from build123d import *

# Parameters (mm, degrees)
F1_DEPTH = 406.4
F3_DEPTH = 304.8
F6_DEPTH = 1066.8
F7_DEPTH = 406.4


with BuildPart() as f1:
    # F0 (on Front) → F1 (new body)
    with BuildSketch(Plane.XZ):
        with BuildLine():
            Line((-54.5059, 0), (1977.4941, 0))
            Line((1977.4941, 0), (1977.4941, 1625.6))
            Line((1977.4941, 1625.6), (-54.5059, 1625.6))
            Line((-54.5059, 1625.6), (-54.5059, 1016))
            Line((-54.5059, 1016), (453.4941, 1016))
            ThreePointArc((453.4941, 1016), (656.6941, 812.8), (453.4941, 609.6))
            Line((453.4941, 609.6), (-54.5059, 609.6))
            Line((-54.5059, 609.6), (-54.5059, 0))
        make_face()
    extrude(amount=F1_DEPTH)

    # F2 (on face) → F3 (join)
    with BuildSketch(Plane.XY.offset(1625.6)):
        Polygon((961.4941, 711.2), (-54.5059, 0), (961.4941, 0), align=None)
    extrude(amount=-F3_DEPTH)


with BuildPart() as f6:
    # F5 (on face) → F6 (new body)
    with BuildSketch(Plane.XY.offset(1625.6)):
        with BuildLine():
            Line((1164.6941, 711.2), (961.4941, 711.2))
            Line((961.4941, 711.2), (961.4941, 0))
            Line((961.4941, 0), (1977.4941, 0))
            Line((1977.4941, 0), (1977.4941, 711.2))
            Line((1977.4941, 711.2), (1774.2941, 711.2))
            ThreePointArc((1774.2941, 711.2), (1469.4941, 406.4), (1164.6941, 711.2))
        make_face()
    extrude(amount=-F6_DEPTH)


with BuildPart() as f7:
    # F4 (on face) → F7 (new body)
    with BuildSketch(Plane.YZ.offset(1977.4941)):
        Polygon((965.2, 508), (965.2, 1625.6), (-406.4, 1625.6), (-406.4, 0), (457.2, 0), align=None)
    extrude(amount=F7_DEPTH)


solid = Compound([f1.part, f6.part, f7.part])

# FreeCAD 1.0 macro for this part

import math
import FreeCAD as App
import Part
import Sketcher

V = App.Vector
Q = App.Units.Quantity

doc = App.newDocument("Part")
body = doc.addObject("PartDesign::Body", "Body")

sketch1 = doc.addObject("Sketcher::SketchObject", "Sketch")
body.addObject(sketch1)
sketch1.AttachmentSupport = (doc.XZ_Plane, [""])
sketch1.MapMode = "FlatFace"
sketch1.addGeometry(Part.LineSegment(V(-55, 0, 0), V(1977, 0, 0)), False)
sketch1.addGeometry(Part.LineSegment(V(1977, 0, 0), V(1977, 1626, 0)), False)
sketch1.addGeometry(Part.LineSegment(V(1977, 1626, 0), V(-55, 1626, 0)), False)
sketch1.addGeometry(Part.LineSegment(V(-55, 1626, 0), V(-55, 1016, 0)), False)
sketch1.addGeometry(Part.LineSegment(V(-55, 1016, 0), V(453, 1016, 0)), False)
sketch1.addGeometry(Part.ArcOfCircle(Part.Circle(V(453, 813, 0), V(0, 0, 1), 203), math.radians(-90), math.radians(90)), False)
sketch1.addGeometry(Part.LineSegment(V(453, 610, 0), V(-55, 610, 0)), False)
sketch1.addGeometry(Part.LineSegment(V(-55, 610, 0), V(-55, 0, 0)), False)
sketch1.addConstraint(Sketcher.Constraint("Coincident", 0, 2, 1, 1))
sketch1.addConstraint(Sketcher.Constraint("Coincident", 1, 2, 2, 1))
sketch1.addConstraint(Sketcher.Constraint("Coincident", 2, 2, 3, 1))
sketch1.addConstraint(Sketcher.Constraint("Coincident", 3, 2, 4, 1))
sketch1.addConstraint(Sketcher.Constraint("Tangent", 4, 2, 5, 2))
sketch1.addConstraint(Sketcher.Constraint("Tangent", 5, 1, 6, 1))
sketch1.addConstraint(Sketcher.Constraint("Coincident", 6, 2, 7, 1))
sketch1.addConstraint(Sketcher.Constraint("Coincident", 7, 2, 0, 1))
sketch1.addConstraint(Sketcher.Constraint("Horizontal", 0))
sketch1.addConstraint(Sketcher.Constraint("Vertical", 1))
sketch1.addConstraint(Sketcher.Constraint("Horizontal", 2))
sketch1.addConstraint(Sketcher.Constraint("Vertical", 3))
sketch1.addConstraint(Sketcher.Constraint("Horizontal", 4))
sketch1.addConstraint(Sketcher.Constraint("Horizontal", 6))
sketch1.addConstraint(Sketcher.Constraint("Vertical", 7))
sketch1.addConstraint(Sketcher.Constraint("PointOnObject", 0, 2, -1))
sketch1.addConstraint(Sketcher.Constraint("Vertical", 3, 2, 6, 2))
sketch1.addConstraint(Sketcher.Constraint("Equal", 3, 7))
sketch1.addConstraint(Sketcher.Constraint("Radius", 5, Q("8 in")))
sketch1.addConstraint(Sketcher.Constraint("DistanceX", 0, 1, 0, 2, Q("80 in")))
sketch1.addConstraint(Sketcher.Constraint("DistanceX", 4, 1, 4, 2, Q("20 in")))
sketch1.addConstraint(Sketcher.Constraint("DistanceY", 1, 1, 1, 2, Q("64 in")))
sketch1.addConstraint(Sketcher.Constraint("DistanceX", -1, 1, 5, 3, 453.4941))
pad1 = doc.addObject("PartDesign::Pad", "Pad")
body.addObject(pad1)
pad1.Profile = sketch1
pad1.Length = Q("16 in")

sketch2 = doc.addObject("Sketcher::SketchObject", "Sketch001")
body.addObject(sketch2)
sketch2.AttachmentSupport = (doc.XY_Plane, [""])
sketch2.MapMode = "FlatFace"
sketch2.AttachmentOffset = App.Placement(V(0, 0, 64 * 25.4), App.Rotation())
sketch2.addGeometry(Part.LineSegment(V(961, 711, 0), V(-55, 0, 0)), False)
sketch2.addGeometry(Part.LineSegment(V(-55, 0, 0), V(961, 0, 0)), False)
sketch2.addGeometry(Part.LineSegment(V(961, 0, 0), V(961, 711, 0)), False)
sketch2.addConstraint(Sketcher.Constraint("Coincident", 0, 2, 1, 1))
sketch2.addConstraint(Sketcher.Constraint("Coincident", 1, 2, 2, 1))
sketch2.addConstraint(Sketcher.Constraint("Coincident", 2, 2, 0, 1))
sketch2.addConstraint(Sketcher.Constraint("Horizontal", 1))
sketch2.addConstraint(Sketcher.Constraint("Vertical", 2))
sketch2.addConstraint(Sketcher.Constraint("PointOnObject", 0, 2, -1))
sketch2.addConstraint(Sketcher.Constraint("DistanceX", 1, 1, 1, 2, Q("40 in")))
sketch2.addConstraint(Sketcher.Constraint("DistanceY", 2, 1, 2, 2, Q("28 in")))
sketch2.addConstraint(Sketcher.Constraint("DistanceX", 0, 2, -1, 1, 54.5059))
pad2 = doc.addObject("PartDesign::Pad", "Pad001")
body.addObject(pad2)
pad2.Profile = sketch2
pad2.Length = Q("12 in")
pad2.Reversed = True
body2 = doc.addObject("PartDesign::Body", "Body001")

sketch3 = doc.addObject("Sketcher::SketchObject", "Sketch002")
body2.addObject(sketch3)
sketch3.AttachmentSupport = (doc.getObject("XY_Plane001"), [""])
sketch3.MapMode = "FlatFace"
sketch3.AttachmentOffset = App.Placement(V(0, 0, 64 * 25.4), App.Rotation())
sketch3.addGeometry(Part.LineSegment(V(1165, 711, 0), V(961, 711, 0)), False)
sketch3.addGeometry(Part.LineSegment(V(961, 711, 0), V(961, 0, 0)), False)
sketch3.addGeometry(Part.LineSegment(V(961, 0, 0), V(1977, 0, 0)), False)
sketch3.addGeometry(Part.LineSegment(V(1977, 0, 0), V(1977, 711, 0)), False)
sketch3.addGeometry(Part.LineSegment(V(1977, 711, 0), V(1774, 711, 0)), False)
sketch3.addGeometry(Part.ArcOfCircle(Part.Circle(V(1469, 711, 0), V(0, 0, 1), 305), math.radians(180), math.radians(360)), False)
sketch3.addConstraint(Sketcher.Constraint("Coincident", 0, 2, 1, 1))
sketch3.addConstraint(Sketcher.Constraint("Coincident", 1, 2, 2, 1))
sketch3.addConstraint(Sketcher.Constraint("Coincident", 2, 2, 3, 1))
sketch3.addConstraint(Sketcher.Constraint("Coincident", 3, 2, 4, 1))
sketch3.addConstraint(Sketcher.Constraint("Coincident", 4, 2, 5, 2))
sketch3.addConstraint(Sketcher.Constraint("Coincident", 5, 1, 0, 1))
sketch3.addConstraint(Sketcher.Constraint("Horizontal", 0))
sketch3.addConstraint(Sketcher.Constraint("Vertical", 1))
sketch3.addConstraint(Sketcher.Constraint("Horizontal", 2))
sketch3.addConstraint(Sketcher.Constraint("Vertical", 3))
sketch3.addConstraint(Sketcher.Constraint("Horizontal", 4))
sketch3.addConstraint(Sketcher.Constraint("PointOnObject", 1, 2, -1))
sketch3.addConstraint(Sketcher.Constraint("Horizontal", 5, 3, 0, 2))
sketch3.addConstraint(Sketcher.Constraint("Horizontal", 0, 2, 3, 2))
sketch3.addConstraint(Sketcher.Constraint("Equal", 0, 4))
sketch3.addConstraint(Sketcher.Constraint("Radius", 5, Q("12 in")))
sketch3.addConstraint(Sketcher.Constraint("DistanceX", 0, 2, 0, 1, Q("8 in")))
sketch3.addConstraint(Sketcher.Constraint("DistanceY", 1, 2, 1, 1, Q("28 in")))
sketch3.addConstraint(Sketcher.Constraint("DistanceX", -1, 1, 5, 3, 1469.4941))
pad3 = doc.addObject("PartDesign::Pad", "Pad002")
body2.addObject(pad3)
pad3.Profile = sketch3
pad3.Length = Q("42 in")
pad3.Reversed = True
body3 = doc.addObject("PartDesign::Body", "Body002")

sketch4 = doc.addObject("Sketcher::SketchObject", "Sketch003")
body3.addObject(sketch4)
sketch4.AttachmentSupport = (doc.getObject("YZ_Plane002"), [""])
sketch4.MapMode = "FlatFace"
sketch4.AttachmentOffset = App.Placement(V(0, 0, 1977.4941), App.Rotation())
sketch4.addGeometry(Part.LineSegment(V(965, 508, 0), V(965, 1626, 0)), False)
sketch4.addGeometry(Part.LineSegment(V(965, 1626, 0), V(-406, 1626, 0)), False)
sketch4.addGeometry(Part.LineSegment(V(-406, 1626, 0), V(-406, 0, 0)), False)
sketch4.addGeometry(Part.LineSegment(V(-406, 0, 0), V(457, 0, 0)), False)
sketch4.addGeometry(Part.LineSegment(V(457, 0, 0), V(965, 508, 0)), False)
sketch4.addConstraint(Sketcher.Constraint("Coincident", 0, 2, 1, 1))
sketch4.addConstraint(Sketcher.Constraint("Coincident", 1, 2, 2, 1))
sketch4.addConstraint(Sketcher.Constraint("Coincident", 2, 2, 3, 1))
sketch4.addConstraint(Sketcher.Constraint("Coincident", 3, 2, 4, 1))
sketch4.addConstraint(Sketcher.Constraint("Coincident", 4, 2, 0, 1))
sketch4.addConstraint(Sketcher.Constraint("Vertical", 0))
sketch4.addConstraint(Sketcher.Constraint("Horizontal", 1))
sketch4.addConstraint(Sketcher.Constraint("Vertical", 2))
sketch4.addConstraint(Sketcher.Constraint("Horizontal", 3))
sketch4.addConstraint(Sketcher.Constraint("PointOnObject", 2, 2, -1))
sketch4.addConstraint(Sketcher.Constraint("DistanceX", 1, 2, 1, 1, Q("54 in")))
sketch4.addConstraint(Sketcher.Constraint("DistanceX", 3, 1, 3, 2, Q("34 in")))
sketch4.addConstraint(Sketcher.Constraint("DistanceY", 0, 1, 0, 2, Q("44 in")))
sketch4.addConstraint(Sketcher.Constraint("DistanceY", 2, 2, 2, 1, Q("64 in")))
sketch4.addConstraint(Sketcher.Constraint("DistanceX", -1, 1, 0, 2, Q("38 in")))
pad4 = doc.addObject("PartDesign::Pad", "Pad003")
body3.addObject(pad4)
pad4.Profile = sketch4
pad4.Length = Q("16 in")

doc.recompute()
